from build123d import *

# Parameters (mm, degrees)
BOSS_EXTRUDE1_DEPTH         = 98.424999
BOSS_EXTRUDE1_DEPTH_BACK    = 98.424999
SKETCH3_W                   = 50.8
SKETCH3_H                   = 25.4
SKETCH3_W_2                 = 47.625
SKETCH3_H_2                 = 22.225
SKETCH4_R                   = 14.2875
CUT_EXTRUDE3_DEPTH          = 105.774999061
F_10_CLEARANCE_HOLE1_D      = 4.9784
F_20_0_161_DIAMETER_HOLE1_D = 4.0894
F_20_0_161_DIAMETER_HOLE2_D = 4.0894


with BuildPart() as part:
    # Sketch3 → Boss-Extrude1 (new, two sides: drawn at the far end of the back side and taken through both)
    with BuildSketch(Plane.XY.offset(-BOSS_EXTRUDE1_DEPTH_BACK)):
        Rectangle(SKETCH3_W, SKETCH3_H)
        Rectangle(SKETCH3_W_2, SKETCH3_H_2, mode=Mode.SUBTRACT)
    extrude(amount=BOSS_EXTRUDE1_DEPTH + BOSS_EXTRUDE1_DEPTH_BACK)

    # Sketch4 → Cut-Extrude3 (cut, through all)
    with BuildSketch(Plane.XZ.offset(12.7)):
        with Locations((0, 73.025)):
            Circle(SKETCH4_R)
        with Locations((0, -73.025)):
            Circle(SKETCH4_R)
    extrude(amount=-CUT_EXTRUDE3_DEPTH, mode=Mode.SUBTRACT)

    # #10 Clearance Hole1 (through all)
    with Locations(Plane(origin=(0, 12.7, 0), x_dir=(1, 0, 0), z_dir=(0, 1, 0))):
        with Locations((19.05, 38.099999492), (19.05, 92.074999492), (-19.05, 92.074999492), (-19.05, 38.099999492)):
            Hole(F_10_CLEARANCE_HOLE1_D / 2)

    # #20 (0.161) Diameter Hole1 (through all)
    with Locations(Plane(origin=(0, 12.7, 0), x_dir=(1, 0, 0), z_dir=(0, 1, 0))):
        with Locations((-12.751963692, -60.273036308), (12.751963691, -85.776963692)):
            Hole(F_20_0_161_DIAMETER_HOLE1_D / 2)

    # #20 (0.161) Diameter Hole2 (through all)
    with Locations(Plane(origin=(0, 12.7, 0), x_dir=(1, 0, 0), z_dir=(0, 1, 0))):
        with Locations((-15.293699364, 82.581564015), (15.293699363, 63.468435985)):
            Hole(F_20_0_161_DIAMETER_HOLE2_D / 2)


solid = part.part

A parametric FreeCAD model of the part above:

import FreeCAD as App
import Part
import Sketcher
Q = App.Units.Quantity


def add_polygon(sketch, points):
    """Adds a closed chain of lines whose ends are joined by coincident constraints."""
    first, n = sketch.GeometryCount, len(points)
    for a, b in zip(points, points[1:] + points[:1]):
        sketch.addGeometry(Part.LineSegment(App.Vector(*a, 0), App.Vector(*b, 0)), False)
    for i in range(n):
        sketch.addConstraint(Sketcher.Constraint("Coincident", first + i, 2, first + (i + 1) % n, 1))

doc = App.newDocument("Part")
params = doc.addObject("Spreadsheet::Sheet", "Params")
for row, (alias, value) in enumerate([
    ("sketch1_width", "2 in"),
    ("sketch1_height", "1 in"),
    ("sketch1_width2", "1.875 in"),
    ("sketch1_height2", "0.875 in"),
    ("pad1_length", "3.875 in"),
    ("pad1_length2", "3.875 in"),
    ("sketch2_diameter", "1.125 in"),
    ("sketch3_diameter", "0.196 in"),
    ("hole_diameter", "0.196 in"),
    ("sketch4_diameter", "0.161 in"),
    ("hole2_diameter", "0.161 in"),
    ("sketch5_diameter", "0.161 in"),
    ("hole3_diameter", "0.161 in"),
], start=1):
    params.set(f"A{row}", alias)
    params.set(f"B{row}", "=" + value)
    params.setAlias(f"B{row}", alias)

body = doc.addObject("PartDesign::Body", "Body")

# Sketch on XY plane
sketch1 = doc.addObject("Sketcher::SketchObject", "Sketch")
body.addObject(sketch1)
sketch1.AttachmentSupport = (doc.XY_Plane, [""])
sketch1.MapMode = "FlatFace"
add_polygon(sketch1, [(-25, 13), (-25, -13), (25, -13), (25, 13)])  # lines 0-3
add_polygon(sketch1, [(24, -11), (-24, -11), (-24, 11), (24, 11)])  # lines 4-7
sketch1.addConstraint([
    Sketcher.Constraint("Vertical", 0),
    Sketcher.Constraint("Horizontal", 1),
    Sketcher.Constraint("Vertical", 2),
    Sketcher.Constraint("Horizontal", 3),
    Sketcher.Constraint("Horizontal", 4),
    Sketcher.Constraint("Vertical", 5),
    Sketcher.Constraint("Horizontal", 6),
    Sketcher.Constraint("Vertical", 7),
    Sketcher.Constraint("Symmetric", 0, 2, 2, 2, -1, 1),
    Sketcher.Constraint("Symmetric", 4, 2, 6, 2, -1, 1),
    Sketcher.Constraint("DistanceX", 1, 1, 1, 2, Q("2 in")),
    Sketcher.Constraint("DistanceY", 0, 2, 0, 1, Q("1 in")),
    Sketcher.Constraint("DistanceX", 4, 2, 4, 1, Q("1.875 in")),
    Sketcher.Constraint("DistanceY", 5, 1, 5, 2, Q("0.875 in")),
])
sketch1.setExpression("Constraints[18]", "Params.sketch1_width")
sketch1.setExpression("Constraints[19]", "Params.sketch1_height")
sketch1.setExpression("Constraints[20]", "Params.sketch1_width2")
sketch1.setExpression("Constraints[21]", "Params.sketch1_height2")
pad1 = doc.addObject("PartDesign::Pad", "Pad")
body.addObject(pad1)
pad1.Profile = sketch1
pad1.Type = "TwoLengths"
pad1.setExpression("Length", "Params.pad1_length")
pad1.setExpression("Length2", "Params.pad1_length2")

# Sketch on XZ plane
sketch2 = doc.addObject("Sketcher::SketchObject", "Sketch001")
body.addObject(sketch2)
sketch2.AttachmentSupport = (doc.XZ_Plane, [""])
sketch2.MapMode = "FlatFace"
sketch2.AttachmentOffset = App.Placement(App.Vector(0, 0, 0.5 * 25.4), App.Rotation())
sketch2.addGeometry([
    Part.Circle(App.Vector(0, 73, 0), App.Vector(0, 0, 1), 14),
    Part.Circle(App.Vector(0, -73, 0), App.Vector(0, 0, 1), 14),
], False)
sketch2.addConstraint([
    Sketcher.Constraint("Equal", 0, 1),
    Sketcher.Constraint("Symmetric", 0, 3, 1, 3, -1, 1),
    Sketcher.Constraint("PointOnObject", 0, 3, -2),
    Sketcher.Constraint("Diameter", 0, Q("1.125 in")),
    Sketcher.Constraint("DistanceY", 1, 3, 0, 3, Q("5.75 in")),
])
sketch2.setExpression("Constraints[3]", "Params.sketch2_diameter")
pocket1 = doc.addObject("PartDesign::Pocket", "Pocket")
body.addObject(pocket1)
pocket1.Profile = sketch2
pocket1.Type = "ThroughAll"

# Sketch on XZ plane
sketch3 = doc.addObject("Sketcher::SketchObject", "Sketch002")
body.addObject(sketch3)
sketch3.AttachmentSupport = (doc.XZ_Plane, [""])
sketch3.MapMode = "FlatFace"
sketch3.AttachmentOffset = App.Placement(App.Vector(0, 0, -0.5 * 25.4), App.Rotation())
sketch3.addGeometry([
    Part.Circle(App.Vector(19.1, -38.1, 0), App.Vector(0, 0, 1), 2.5),
    Part.Circle(App.Vector(19.1, -92.1, 0), App.Vector(0, 0, 1), 2.5),
    Part.Circle(App.Vector(-19.1, -92.1, 0), App.Vector(0, 0, 1), 2.5),
    Part.Circle(App.Vector(-19.1, -38.1, 0), App.Vector(0, 0, 1), 2.5),
], False)
sketch3.addConstraint([
    Sketcher.Constraint("Equal", 0, 1),
    Sketcher.Constraint("Equal", 1, 2),
    Sketcher.Constraint("Equal", 2, 3),
    Sketcher.Constraint("Symmetric", 1, 3, 2, 3, -2),
    Sketcher.Constraint("Symmetric", 0, 3, 3, 3, -2),
    Sketcher.Constraint("Vertical", 0, 3, 1, 3),
    Sketcher.Constraint("Diameter", 0, Q("0.196 in")),
    Sketcher.Constraint("DistanceY", 0, 3, -1, 1, Q("1.5 in")),
    Sketcher.Constraint("DistanceX", 2, 3, 1, 3, Q("1.5 in")),
    Sketcher.Constraint("DistanceY", 1, 3, -1, 1, Q("3.625 in")),
])
sketch3.setExpression("Constraints[6]", "Params.sketch3_diameter")
doc.recompute()
hole = doc.addObject("PartDesign::Hole", "Hole")
body.addObject(hole)
hole.Profile = sketch3
hole.ThreadType = "None"
hole.setExpression("Diameter", "Params.hole_diameter")
hole.DepthType = "ThroughAll"
hole.Reversed = True

# Sketch on XZ plane
sketch4 = doc.addObject("Sketcher::SketchObject", "Sketch003")
body.addObject(sketch4)
sketch4.AttachmentSupport = (doc.XZ_Plane, [""])
sketch4.MapMode = "FlatFace"
sketch4.AttachmentOffset = App.Placement(App.Vector(0, 0, -0.5 * 25.4), App.Rotation())
sketch4.addGeometry([
    Part.Circle(App.Vector(-12.8, 60.3, 0), App.Vector(0, 0, 1), 2),
    Part.Circle(App.Vector(12.8, 85.8, 0), App.Vector(0, 0, 1), 2),
], False)
sketch4.addConstraint([
    Sketcher.Constraint("Equal", 0, 1),
    Sketcher.Constraint("Diameter", 0, Q("0.161 in")),
    Sketcher.Constraint("DistanceX", 0, 3, -1, 1, 12.751964),
    Sketcher.Constraint("DistanceY", -1, 1, 0, 3, 60.273036),
    Sketcher.Constraint("DistanceX", -1, 1, 1, 3, 12.751964),
    Sketcher.Constraint("DistanceY", -1, 1, 1, 3, 85.776964),
])
sketch4.setExpression("Constraints[1]", "Params.sketch4_diameter")
doc.recompute()
hole2 = doc.addObject("PartDesign::Hole", "Hole001")
body.addObject(hole2)
hole2.Profile = sketch4
hole2.ThreadType = "None"
hole2.setExpression("Diameter", "Params.hole2_diameter")
hole2.DepthType = "ThroughAll"
hole2.Reversed = True

# Sketch on XZ plane
sketch5 = doc.addObject("Sketcher::SketchObject", "Sketch004")
body.addObject(sketch5)
sketch5.AttachmentSupport = (doc.XZ_Plane, [""])
sketch5.MapMode = "FlatFace"
sketch5.AttachmentOffset = App.Placement(App.Vector(0, 0, -0.5 * 25.4), App.Rotation())
sketch5.addGeometry([
    Part.Circle(App.Vector(-15.3, -82.6, 0), App.Vector(0, 0, 1), 2),
    Part.Circle(App.Vector(15.3, -63.5, 0), App.Vector(0, 0, 1), 2),
], False)
sketch5.addConstraint([
    Sketcher.Constraint("Equal", 0, 1),
    Sketcher.Constraint("Diameter", 0, Q("0.161 in")),
    Sketcher.Constraint("DistanceX", 0, 3, -1, 1, 15.293699),
    Sketcher.Constraint("DistanceX", -1, 1, 1, 3, 15.293699),
    Sketcher.Constraint("DistanceY", 0, 3, 1, 3, 19.113128),
    Sketcher.Constraint("DistanceY", 0, 3, -1, 1, 82.581564),
])
sketch5.setExpression("Constraints[1]", "Params.sketch5_diameter")
doc.recompute()
hole3 = doc.addObject("PartDesign::Hole", "Hole002")
body.addObject(hole3)
hole3.Profile = sketch5
hole3.ThreadType = "None"
hole3.setExpression("Diameter", "Params.hole3_diameter")
hole3.DepthType = "ThroughAll"
hole3.Reversed = True

doc.recompute()
